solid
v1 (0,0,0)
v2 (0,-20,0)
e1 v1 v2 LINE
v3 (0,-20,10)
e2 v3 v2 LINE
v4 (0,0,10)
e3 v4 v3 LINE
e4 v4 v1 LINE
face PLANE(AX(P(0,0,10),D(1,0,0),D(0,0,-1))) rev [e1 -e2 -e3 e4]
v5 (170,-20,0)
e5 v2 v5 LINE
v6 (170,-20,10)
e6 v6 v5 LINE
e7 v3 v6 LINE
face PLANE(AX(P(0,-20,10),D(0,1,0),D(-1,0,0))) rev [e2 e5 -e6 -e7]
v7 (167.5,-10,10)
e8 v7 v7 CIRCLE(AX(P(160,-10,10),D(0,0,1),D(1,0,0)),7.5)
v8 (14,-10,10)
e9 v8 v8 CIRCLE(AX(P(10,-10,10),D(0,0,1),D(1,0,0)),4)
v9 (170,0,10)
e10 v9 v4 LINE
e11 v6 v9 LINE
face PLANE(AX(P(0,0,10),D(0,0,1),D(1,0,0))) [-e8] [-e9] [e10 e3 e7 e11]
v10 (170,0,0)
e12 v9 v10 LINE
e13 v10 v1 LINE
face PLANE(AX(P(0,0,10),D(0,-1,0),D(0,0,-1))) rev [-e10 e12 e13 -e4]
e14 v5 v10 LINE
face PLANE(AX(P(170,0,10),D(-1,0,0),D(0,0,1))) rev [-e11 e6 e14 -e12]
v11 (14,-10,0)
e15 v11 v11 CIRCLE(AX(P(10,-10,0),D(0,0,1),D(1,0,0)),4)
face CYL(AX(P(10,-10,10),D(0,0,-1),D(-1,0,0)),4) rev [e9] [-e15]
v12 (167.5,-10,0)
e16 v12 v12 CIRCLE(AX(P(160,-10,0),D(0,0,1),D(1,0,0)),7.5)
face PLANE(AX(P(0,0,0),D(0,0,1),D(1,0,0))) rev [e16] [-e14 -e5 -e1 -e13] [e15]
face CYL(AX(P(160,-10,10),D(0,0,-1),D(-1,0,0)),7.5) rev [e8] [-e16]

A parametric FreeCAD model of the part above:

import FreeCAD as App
import Part
import Sketcher
from FreeCAD import Vector
Q = App.Units.Quantity

doc = App.newDocument("Part")
body = doc.addObject("PartDesign::Body", "Body")

sketch1 = body.newObject("Sketcher::SketchObject", "Sketch")
sketch1.AttachmentSupport = (doc.getObject("XY_Plane"), [""])
sketch1.MapMode = "FlatFace"
sketch1.addGeometry([
    Part.LineSegment(Vector(0, 0, 0), Vector(0, -20, 0)),
    Part.LineSegment(Vector(0, -20, 0), Vector(170, -20, 0)),
    Part.LineSegment(Vector(170, -20, 0), Vector(170, 0, 0)),
    Part.LineSegment(Vector(170, 0, 0), Vector(0, 0, 0)),
    Part.Circle(Vector(10, -10, 0), Vector(0, 0, 1), 4),
    Part.Circle(Vector(160, -10, 0), Vector(0, 0, 1), 7.5),
], False)
sketch1.addConstraint([
    Sketcher.Constraint("Coincident", 0, 2, 1, 1),
    Sketcher.Constraint("Coincident", 1, 2, 2, 1),
    Sketcher.Constraint("Coincident", 2, 2, 3, 1),
    Sketcher.Constraint("Coincident", 3, 2, 0, 1),
    Sketcher.Constraint("Vertical", 0),
    Sketcher.Constraint("Horizontal", 1),
    Sketcher.Constraint("Vertical", 2),
    Sketcher.Constraint("Horizontal", 3),
    Sketcher.Constraint("Coincident", 3, 2, -1, 1),
    Sketcher.Constraint("Horizontal", 4, 3, 5, 3),
    Sketcher.Constraint("Diameter", 4, Q("8 mm")),
    Sketcher.Constraint("Diameter", 5, Q("15 mm")),
    Sketcher.Constraint("DistanceX", 1, 1, 1, 2, Q("170 mm")),
    Sketcher.Constraint("DistanceY", 0, 2, 0, 1, Q("20 mm")),
    Sketcher.Constraint("DistanceX", -1, 1, 4, 3, Q("10 mm")),
    Sketcher.Constraint("DistanceY", 4, 3, -1, 1, Q("10 mm")),
    Sketcher.Constraint("DistanceX", -1, 1, 5, 3, Q("160 mm")),
])
pad1 = body.newObject("PartDesign::Pad", "Pad")
pad1.Profile = sketch1
pad1.Length = 10

doc.recompute()
